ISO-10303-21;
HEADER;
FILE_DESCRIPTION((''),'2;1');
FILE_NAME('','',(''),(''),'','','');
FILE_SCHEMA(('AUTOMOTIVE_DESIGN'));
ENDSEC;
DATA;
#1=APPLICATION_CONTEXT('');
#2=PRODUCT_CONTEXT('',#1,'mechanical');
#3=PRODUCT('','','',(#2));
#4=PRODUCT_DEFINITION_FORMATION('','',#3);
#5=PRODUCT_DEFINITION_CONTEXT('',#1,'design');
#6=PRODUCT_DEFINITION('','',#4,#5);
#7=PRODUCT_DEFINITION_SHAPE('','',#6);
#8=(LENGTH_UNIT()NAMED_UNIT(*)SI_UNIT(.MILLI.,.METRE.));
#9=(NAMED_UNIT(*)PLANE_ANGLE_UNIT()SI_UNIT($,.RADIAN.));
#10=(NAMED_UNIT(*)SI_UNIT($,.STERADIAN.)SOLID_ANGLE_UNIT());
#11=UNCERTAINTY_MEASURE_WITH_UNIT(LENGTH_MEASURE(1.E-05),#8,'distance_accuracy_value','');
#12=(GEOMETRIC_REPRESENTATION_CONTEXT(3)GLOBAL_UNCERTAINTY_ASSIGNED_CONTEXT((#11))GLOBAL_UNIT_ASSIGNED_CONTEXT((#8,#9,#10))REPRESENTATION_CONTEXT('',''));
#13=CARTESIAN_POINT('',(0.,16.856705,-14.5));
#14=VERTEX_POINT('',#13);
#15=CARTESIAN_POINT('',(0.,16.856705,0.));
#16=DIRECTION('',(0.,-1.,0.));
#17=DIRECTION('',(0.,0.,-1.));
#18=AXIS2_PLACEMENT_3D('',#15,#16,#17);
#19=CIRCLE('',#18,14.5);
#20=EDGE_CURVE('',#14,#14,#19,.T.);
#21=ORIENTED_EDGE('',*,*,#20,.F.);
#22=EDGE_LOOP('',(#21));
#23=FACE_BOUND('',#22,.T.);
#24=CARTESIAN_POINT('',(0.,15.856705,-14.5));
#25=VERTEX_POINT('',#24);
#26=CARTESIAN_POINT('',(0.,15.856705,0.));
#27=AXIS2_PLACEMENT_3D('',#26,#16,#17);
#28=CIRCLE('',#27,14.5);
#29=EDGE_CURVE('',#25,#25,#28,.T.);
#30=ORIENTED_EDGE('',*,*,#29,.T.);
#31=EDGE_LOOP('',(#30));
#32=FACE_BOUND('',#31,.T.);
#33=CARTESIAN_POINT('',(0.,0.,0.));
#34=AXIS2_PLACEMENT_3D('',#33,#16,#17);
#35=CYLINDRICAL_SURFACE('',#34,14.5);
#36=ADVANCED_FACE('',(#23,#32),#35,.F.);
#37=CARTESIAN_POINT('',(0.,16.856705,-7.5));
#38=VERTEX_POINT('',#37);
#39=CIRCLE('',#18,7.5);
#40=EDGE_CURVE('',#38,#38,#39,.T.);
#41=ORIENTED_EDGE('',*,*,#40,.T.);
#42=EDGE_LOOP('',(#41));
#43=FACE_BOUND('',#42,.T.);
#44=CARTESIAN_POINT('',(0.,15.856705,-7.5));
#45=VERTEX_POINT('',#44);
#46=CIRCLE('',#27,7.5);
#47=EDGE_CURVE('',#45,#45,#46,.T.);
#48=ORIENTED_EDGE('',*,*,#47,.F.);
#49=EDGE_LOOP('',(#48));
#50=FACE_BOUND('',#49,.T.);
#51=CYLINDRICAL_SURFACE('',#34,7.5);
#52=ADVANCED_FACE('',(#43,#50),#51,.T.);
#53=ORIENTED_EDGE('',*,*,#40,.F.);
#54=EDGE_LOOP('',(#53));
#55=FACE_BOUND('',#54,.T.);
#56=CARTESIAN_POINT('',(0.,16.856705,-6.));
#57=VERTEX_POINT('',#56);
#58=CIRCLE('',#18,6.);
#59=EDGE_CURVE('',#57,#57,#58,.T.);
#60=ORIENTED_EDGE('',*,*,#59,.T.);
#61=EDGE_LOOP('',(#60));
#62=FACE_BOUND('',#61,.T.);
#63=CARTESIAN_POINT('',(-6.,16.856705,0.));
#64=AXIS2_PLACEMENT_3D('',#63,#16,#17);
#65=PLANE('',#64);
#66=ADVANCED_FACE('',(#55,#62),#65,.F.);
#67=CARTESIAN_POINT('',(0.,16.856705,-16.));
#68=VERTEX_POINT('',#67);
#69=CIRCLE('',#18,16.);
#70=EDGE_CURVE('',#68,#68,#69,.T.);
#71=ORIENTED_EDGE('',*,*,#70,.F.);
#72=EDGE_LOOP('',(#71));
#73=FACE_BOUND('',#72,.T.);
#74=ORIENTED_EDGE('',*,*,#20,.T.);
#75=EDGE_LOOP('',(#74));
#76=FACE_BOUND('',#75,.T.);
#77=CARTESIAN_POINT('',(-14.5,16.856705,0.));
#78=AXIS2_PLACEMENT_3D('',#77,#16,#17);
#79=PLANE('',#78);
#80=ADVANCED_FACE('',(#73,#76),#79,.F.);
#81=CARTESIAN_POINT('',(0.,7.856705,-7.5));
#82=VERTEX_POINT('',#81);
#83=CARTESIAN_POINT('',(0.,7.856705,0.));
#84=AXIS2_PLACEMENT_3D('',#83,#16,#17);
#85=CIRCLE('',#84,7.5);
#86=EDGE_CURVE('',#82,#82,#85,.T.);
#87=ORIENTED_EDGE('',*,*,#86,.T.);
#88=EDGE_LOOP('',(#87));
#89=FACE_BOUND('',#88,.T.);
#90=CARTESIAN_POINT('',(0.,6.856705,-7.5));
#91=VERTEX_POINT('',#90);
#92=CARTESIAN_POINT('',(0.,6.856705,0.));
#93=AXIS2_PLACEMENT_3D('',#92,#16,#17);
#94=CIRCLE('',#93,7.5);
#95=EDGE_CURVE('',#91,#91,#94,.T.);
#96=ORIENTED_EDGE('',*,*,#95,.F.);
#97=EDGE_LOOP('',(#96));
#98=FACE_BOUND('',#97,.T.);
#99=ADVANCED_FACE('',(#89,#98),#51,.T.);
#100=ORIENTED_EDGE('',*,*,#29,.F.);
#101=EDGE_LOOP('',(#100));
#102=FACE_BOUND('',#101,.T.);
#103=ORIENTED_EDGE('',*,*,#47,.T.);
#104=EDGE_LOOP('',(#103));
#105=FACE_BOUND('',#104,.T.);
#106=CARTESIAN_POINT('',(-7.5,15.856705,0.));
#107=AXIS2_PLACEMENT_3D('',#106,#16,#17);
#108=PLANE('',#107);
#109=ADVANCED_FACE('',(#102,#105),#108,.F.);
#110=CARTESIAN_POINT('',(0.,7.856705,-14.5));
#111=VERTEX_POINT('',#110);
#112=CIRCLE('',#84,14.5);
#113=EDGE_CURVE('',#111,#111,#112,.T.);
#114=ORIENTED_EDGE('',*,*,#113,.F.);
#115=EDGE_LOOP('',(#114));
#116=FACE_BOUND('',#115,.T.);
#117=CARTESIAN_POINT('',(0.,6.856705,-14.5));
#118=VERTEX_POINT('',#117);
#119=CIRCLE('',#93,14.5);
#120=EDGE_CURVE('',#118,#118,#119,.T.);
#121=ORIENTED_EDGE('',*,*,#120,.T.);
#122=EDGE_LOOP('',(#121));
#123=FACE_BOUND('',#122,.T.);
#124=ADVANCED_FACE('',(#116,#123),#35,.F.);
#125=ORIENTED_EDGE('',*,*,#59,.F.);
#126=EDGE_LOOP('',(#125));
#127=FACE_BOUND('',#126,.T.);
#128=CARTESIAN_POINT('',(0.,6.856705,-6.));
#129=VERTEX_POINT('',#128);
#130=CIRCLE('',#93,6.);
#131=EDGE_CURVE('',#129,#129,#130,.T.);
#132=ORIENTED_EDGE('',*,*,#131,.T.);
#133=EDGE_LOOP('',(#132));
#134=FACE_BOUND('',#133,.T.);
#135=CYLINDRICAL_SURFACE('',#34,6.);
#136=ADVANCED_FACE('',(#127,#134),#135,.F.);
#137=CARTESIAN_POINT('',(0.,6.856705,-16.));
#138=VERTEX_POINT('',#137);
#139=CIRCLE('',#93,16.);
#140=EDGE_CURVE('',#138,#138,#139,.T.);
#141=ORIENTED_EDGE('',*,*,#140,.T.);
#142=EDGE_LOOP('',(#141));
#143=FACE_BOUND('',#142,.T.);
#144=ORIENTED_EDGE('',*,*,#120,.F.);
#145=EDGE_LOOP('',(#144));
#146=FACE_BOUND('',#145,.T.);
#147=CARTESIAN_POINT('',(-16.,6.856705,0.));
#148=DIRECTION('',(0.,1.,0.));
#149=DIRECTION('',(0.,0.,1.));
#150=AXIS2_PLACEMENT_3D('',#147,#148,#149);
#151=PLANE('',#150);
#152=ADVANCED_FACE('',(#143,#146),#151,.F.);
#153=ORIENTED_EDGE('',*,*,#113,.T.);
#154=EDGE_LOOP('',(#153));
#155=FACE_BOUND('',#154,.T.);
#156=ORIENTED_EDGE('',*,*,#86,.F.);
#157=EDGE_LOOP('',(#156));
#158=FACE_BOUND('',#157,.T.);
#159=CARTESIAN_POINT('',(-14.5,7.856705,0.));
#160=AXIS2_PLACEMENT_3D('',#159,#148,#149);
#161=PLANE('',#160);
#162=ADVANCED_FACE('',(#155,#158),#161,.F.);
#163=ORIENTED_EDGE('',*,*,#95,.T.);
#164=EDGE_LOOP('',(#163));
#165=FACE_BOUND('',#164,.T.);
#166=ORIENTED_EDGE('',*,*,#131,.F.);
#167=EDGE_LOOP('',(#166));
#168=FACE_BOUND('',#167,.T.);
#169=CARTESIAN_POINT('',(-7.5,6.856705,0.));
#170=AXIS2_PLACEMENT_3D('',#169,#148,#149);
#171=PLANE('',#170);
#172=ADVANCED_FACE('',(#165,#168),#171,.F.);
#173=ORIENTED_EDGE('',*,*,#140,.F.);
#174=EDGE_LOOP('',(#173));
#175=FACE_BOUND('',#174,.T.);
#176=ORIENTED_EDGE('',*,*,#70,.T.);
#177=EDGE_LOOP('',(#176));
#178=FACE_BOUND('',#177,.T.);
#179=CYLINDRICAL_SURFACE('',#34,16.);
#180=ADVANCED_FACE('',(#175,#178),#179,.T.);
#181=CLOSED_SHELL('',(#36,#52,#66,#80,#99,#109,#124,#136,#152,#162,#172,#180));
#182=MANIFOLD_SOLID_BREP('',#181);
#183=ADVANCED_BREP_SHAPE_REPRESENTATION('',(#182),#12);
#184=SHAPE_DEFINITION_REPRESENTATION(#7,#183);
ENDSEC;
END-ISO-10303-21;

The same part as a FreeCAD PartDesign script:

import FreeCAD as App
import Part
import Sketcher
Q = App.Units.Quantity

doc = App.newDocument("Part")
body = doc.addObject("PartDesign::Body", "Body")

sketch1 = body.newObject("Sketcher::SketchObject", "Sketch")
sketch1.AttachmentSupport = (doc.getObject("XY_Plane"), [""])
sketch1.MapMode = "FlatFace"
sketch1.addGeometry(Part.LineSegment(App.Vector(-6, 6.9, 0), App.Vector(-6, 16.9, 0)), False)
sketch1.addGeometry(Part.LineSegment(App.Vector(-6, 16.9, 0), App.Vector(-7.5, 16.9, 0)), False)
sketch1.addGeometry(Part.LineSegment(App.Vector(-7.5, 16.9, 0), App.Vector(-7.5, 15.9, 0)), False)
sketch1.addGeometry(Part.LineSegment(App.Vector(-7.5, 15.9, 0), App.Vector(-14.5, 15.9, 0)), False)
sketch1.addGeometry(Part.LineSegment(App.Vector(-14.5, 15.9, 0), App.Vector(-14.5, 16.9, 0)), False)
sketch1.addGeometry(Part.LineSegment(App.Vector(-14.5, 16.9, 0), App.Vector(-16, 16.9, 0)), False)
sketch1.addGeometry(Part.LineSegment(App.Vector(-16, 16.9, 0), App.Vector(-16, 6.9, 0)), False)
sketch1.addGeometry(Part.LineSegment(App.Vector(-16, 6.9, 0), App.Vector(-14.5, 6.9, 0)), False)
sketch1.addGeometry(Part.LineSegment(App.Vector(-14.5, 6.9, 0), App.Vector(-14.5, 7.9, 0)), False)
sketch1.addGeometry(Part.LineSegment(App.Vector(-14.5, 7.9, 0), App.Vector(-7.5, 7.9, 0)), False)
sketch1.addGeometry(Part.LineSegment(App.Vector(-7.5, 7.9, 0), App.Vector(-7.5, 6.9, 0)), False)
sketch1.addGeometry(Part.LineSegment(App.Vector(-7.5, 6.9, 0), App.Vector(-6, 6.9, 0)), False)
sketch1.addConstraint(Sketcher.Constraint("Coincident", 0, 2, 1, 1))
sketch1.addConstraint(Sketcher.Constraint("Coincident", 1, 2, 2, 1))
sketch1.addConstraint(Sketcher.Constraint("Coincident", 2, 2, 3, 1))
sketch1.addConstraint(Sketcher.Constraint("Coincident", 3, 2, 4, 1))
sketch1.addConstraint(Sketcher.Constraint("Coincident", 4, 2, 5, 1))
sketch1.addConstraint(Sketcher.Constraint("Coincident", 5, 2, 6, 1))
sketch1.addConstraint(Sketcher.Constraint("Coincident", 6, 2, 7, 1))
sketch1.addConstraint(Sketcher.Constraint("Coincident", 7, 2, 8, 1))
sketch1.addConstraint(Sketcher.Constraint("Coincident", 8, 2, 9, 1))
sketch1.addConstraint(Sketcher.Constraint("Coincident", 9, 2, 10, 1))
sketch1.addConstraint(Sketcher.Constraint("Coincident", 10, 2, 11, 1))
sketch1.addConstraint(Sketcher.Constraint("Coincident", 11, 2, 0, 1))
sketch1.addConstraint(Sketcher.Constraint("Vertical", 0))
sketch1.addConstraint(Sketcher.Constraint("Horizontal", 1))
sketch1.addConstraint(Sketcher.Constraint("Vertical", 2))
sketch1.addConstraint(Sketcher.Constraint("Horizontal", 3))
sketch1.addConstraint(Sketcher.Constraint("Vertical", 4))
sketch1.addConstraint(Sketcher.Constraint("Horizontal", 5))
sketch1.addConstraint(Sketcher.Constraint("Vertical", 6))
sketch1.addConstraint(Sketcher.Constraint("Horizontal", 7))
sketch1.addConstraint(Sketcher.Constraint("Vertical", 8))
sketch1.addConstraint(Sketcher.Constraint("Horizontal", 9))
sketch1.addConstraint(Sketcher.Constraint("Vertical", 10))
sketch1.addConstraint(Sketcher.Constraint("Horizontal", 11))
sketch1.addConstraint(Sketcher.Constraint("Horizontal", 1, 2, 4, 2))
sketch1.addConstraint(Sketcher.Constraint("Horizontal", 7, 2, 10, 2))
sketch1.addConstraint(Sketcher.Constraint("Vertical", 4, 2, 7, 2))
sketch1.addConstraint(Sketcher.Constraint("Vertical", 2, 2, 9, 2))
sketch1.addConstraint(Sketcher.Constraint("Equal", 1, 5))
sketch1.addConstraint(Sketcher.Constraint("Equal", 4, 8))
sketch1.addConstraint(Sketcher.Constraint("DistanceX", 3, 2, 3, 1, Q("7 mm")))
sketch1.addConstraint(Sketcher.Constraint("DistanceY", 0, 1, 0, 2, Q("10 mm")))
sketch1.addConstraint(Sketcher.Constraint("DistanceY", 2, 2, 2, 1, Q("1 mm")))
sketch1.addConstraint(Sketcher.Constraint("DistanceX", 1, 2, 1, 1, Q("1.5 mm")))
sketch1.addConstraint(Sketcher.Constraint("DistanceX", 0, 2, -1, 1, Q("6 mm")))
sketch1.addConstraint(Sketcher.Constraint("DistanceY", -1, 1, 0, 2, Q("16.856705 mm")))
revolution = body.newObject("PartDesign::Revolution", "Revolution")
revolution.Profile = sketch1
revolution.ReferenceAxis = (sketch1, ["V_Axis"])
revolution.Angle = 360

doc.recompute()
